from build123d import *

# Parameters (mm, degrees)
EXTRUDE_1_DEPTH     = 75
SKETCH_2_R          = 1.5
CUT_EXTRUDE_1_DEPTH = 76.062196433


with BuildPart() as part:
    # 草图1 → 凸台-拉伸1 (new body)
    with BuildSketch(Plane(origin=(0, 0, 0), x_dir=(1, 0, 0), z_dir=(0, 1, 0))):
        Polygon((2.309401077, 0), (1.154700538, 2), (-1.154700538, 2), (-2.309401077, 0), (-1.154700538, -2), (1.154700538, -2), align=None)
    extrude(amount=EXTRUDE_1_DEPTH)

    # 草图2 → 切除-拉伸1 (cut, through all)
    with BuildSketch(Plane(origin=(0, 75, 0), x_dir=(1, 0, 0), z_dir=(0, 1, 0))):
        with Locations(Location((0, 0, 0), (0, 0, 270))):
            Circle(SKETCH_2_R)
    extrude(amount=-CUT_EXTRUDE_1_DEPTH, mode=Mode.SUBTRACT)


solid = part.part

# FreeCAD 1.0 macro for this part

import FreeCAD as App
import Part
import Sketcher
Q = App.Units.Quantity

doc = App.newDocument("Part")
body = doc.addObject("PartDesign::Body", "Body")

sketch1 = doc.addObject("Sketcher::SketchObject", "Sketch")
body.addObject(sketch1)
sketch1.AttachmentSupport = (doc.XZ_Plane, [""])
sketch1.MapMode = "FlatFace"
sketch1.addGeometry([
    Part.LineSegment(App.Vector(2.3, 0, 0), App.Vector(1.2, -2, 0)),
    Part.LineSegment(App.Vector(1.2, -2, 0), App.Vector(-1.2, -2, 0)),
    Part.LineSegment(App.Vector(-1.2, -2, 0), App.Vector(-2.3, 0, 0)),
    Part.LineSegment(App.Vector(-2.3, 0, 0), App.Vector(-1.2, 2, 0)),
    Part.LineSegment(App.Vector(-1.2, 2, 0), App.Vector(1.2, 2, 0)),
    Part.LineSegment(App.Vector(1.2, 2, 0), App.Vector(2.3, 0, 0)),
], False)
sketch1.addConstraint([
    Sketcher.Constraint("Coincident", 0, 2, 1, 1),
    Sketcher.Constraint("Coincident", 1, 2, 2, 1),
    Sketcher.Constraint("Coincident", 2, 2, 3, 1),
    Sketcher.Constraint("Coincident", 3, 2, 4, 1),
    Sketcher.Constraint("Coincident", 4, 2, 5, 1),
    Sketcher.Constraint("Coincident", 5, 2, 0, 1),
    Sketcher.Constraint("Horizontal", 1),
    Sketcher.Constraint("Horizontal", 4),
    Sketcher.Constraint("Symmetric", 0, 2, 3, 2, -1, 1),
    Sketcher.Constraint("Symmetric", 2, 2, 5, 2, -1, 1),
    Sketcher.Constraint("PointOnObject", 2, 2, -1),
    Sketcher.Constraint("Parallel", 2, 5),
    Sketcher.Constraint("Vertical", 1, 2, 3, 2),
    Sketcher.Constraint("Angle", 0, Q("-120 deg")),
    Sketcher.Constraint("DistanceY", 0, 2, -1, 1, Q("2 mm")),
    Sketcher.Constraint("DistanceX", 1, 2, 1, 1, Q("2.309401 mm")),
])
pad1 = doc.addObject("PartDesign::Pad", "Pad")
body.addObject(pad1)
pad1.Profile = sketch1
pad1.Length = 75
pad1.Reversed = True

sketch2 = doc.addObject("Sketcher::SketchObject", "Sketch001")
body.addObject(sketch2)
sketch2.AttachmentSupport = (doc.XZ_Plane, [""])
sketch2.MapMode = "FlatFace"
sketch2.AttachmentOffset = App.Placement(App.Vector(0, 0, -75), App.Rotation())
sketch2.addGeometry(Part.Circle(App.Vector(0, 0, 0), App.Vector(0, 0, 1), 1.5), False)
sketch2.addConstraint([
    Sketcher.Constraint("Coincident", 0, 3, -1, 1),
    Sketcher.Constraint("Diameter", 0, Q("3 mm")),
])
pocket1 = doc.addObject("PartDesign::Pocket", "Pocket")
body.addObject(pocket1)
pocket1.Profile = sketch2
pocket1.Type = "ThroughAll"
pocket1.Reversed = True

doc.recompute()
